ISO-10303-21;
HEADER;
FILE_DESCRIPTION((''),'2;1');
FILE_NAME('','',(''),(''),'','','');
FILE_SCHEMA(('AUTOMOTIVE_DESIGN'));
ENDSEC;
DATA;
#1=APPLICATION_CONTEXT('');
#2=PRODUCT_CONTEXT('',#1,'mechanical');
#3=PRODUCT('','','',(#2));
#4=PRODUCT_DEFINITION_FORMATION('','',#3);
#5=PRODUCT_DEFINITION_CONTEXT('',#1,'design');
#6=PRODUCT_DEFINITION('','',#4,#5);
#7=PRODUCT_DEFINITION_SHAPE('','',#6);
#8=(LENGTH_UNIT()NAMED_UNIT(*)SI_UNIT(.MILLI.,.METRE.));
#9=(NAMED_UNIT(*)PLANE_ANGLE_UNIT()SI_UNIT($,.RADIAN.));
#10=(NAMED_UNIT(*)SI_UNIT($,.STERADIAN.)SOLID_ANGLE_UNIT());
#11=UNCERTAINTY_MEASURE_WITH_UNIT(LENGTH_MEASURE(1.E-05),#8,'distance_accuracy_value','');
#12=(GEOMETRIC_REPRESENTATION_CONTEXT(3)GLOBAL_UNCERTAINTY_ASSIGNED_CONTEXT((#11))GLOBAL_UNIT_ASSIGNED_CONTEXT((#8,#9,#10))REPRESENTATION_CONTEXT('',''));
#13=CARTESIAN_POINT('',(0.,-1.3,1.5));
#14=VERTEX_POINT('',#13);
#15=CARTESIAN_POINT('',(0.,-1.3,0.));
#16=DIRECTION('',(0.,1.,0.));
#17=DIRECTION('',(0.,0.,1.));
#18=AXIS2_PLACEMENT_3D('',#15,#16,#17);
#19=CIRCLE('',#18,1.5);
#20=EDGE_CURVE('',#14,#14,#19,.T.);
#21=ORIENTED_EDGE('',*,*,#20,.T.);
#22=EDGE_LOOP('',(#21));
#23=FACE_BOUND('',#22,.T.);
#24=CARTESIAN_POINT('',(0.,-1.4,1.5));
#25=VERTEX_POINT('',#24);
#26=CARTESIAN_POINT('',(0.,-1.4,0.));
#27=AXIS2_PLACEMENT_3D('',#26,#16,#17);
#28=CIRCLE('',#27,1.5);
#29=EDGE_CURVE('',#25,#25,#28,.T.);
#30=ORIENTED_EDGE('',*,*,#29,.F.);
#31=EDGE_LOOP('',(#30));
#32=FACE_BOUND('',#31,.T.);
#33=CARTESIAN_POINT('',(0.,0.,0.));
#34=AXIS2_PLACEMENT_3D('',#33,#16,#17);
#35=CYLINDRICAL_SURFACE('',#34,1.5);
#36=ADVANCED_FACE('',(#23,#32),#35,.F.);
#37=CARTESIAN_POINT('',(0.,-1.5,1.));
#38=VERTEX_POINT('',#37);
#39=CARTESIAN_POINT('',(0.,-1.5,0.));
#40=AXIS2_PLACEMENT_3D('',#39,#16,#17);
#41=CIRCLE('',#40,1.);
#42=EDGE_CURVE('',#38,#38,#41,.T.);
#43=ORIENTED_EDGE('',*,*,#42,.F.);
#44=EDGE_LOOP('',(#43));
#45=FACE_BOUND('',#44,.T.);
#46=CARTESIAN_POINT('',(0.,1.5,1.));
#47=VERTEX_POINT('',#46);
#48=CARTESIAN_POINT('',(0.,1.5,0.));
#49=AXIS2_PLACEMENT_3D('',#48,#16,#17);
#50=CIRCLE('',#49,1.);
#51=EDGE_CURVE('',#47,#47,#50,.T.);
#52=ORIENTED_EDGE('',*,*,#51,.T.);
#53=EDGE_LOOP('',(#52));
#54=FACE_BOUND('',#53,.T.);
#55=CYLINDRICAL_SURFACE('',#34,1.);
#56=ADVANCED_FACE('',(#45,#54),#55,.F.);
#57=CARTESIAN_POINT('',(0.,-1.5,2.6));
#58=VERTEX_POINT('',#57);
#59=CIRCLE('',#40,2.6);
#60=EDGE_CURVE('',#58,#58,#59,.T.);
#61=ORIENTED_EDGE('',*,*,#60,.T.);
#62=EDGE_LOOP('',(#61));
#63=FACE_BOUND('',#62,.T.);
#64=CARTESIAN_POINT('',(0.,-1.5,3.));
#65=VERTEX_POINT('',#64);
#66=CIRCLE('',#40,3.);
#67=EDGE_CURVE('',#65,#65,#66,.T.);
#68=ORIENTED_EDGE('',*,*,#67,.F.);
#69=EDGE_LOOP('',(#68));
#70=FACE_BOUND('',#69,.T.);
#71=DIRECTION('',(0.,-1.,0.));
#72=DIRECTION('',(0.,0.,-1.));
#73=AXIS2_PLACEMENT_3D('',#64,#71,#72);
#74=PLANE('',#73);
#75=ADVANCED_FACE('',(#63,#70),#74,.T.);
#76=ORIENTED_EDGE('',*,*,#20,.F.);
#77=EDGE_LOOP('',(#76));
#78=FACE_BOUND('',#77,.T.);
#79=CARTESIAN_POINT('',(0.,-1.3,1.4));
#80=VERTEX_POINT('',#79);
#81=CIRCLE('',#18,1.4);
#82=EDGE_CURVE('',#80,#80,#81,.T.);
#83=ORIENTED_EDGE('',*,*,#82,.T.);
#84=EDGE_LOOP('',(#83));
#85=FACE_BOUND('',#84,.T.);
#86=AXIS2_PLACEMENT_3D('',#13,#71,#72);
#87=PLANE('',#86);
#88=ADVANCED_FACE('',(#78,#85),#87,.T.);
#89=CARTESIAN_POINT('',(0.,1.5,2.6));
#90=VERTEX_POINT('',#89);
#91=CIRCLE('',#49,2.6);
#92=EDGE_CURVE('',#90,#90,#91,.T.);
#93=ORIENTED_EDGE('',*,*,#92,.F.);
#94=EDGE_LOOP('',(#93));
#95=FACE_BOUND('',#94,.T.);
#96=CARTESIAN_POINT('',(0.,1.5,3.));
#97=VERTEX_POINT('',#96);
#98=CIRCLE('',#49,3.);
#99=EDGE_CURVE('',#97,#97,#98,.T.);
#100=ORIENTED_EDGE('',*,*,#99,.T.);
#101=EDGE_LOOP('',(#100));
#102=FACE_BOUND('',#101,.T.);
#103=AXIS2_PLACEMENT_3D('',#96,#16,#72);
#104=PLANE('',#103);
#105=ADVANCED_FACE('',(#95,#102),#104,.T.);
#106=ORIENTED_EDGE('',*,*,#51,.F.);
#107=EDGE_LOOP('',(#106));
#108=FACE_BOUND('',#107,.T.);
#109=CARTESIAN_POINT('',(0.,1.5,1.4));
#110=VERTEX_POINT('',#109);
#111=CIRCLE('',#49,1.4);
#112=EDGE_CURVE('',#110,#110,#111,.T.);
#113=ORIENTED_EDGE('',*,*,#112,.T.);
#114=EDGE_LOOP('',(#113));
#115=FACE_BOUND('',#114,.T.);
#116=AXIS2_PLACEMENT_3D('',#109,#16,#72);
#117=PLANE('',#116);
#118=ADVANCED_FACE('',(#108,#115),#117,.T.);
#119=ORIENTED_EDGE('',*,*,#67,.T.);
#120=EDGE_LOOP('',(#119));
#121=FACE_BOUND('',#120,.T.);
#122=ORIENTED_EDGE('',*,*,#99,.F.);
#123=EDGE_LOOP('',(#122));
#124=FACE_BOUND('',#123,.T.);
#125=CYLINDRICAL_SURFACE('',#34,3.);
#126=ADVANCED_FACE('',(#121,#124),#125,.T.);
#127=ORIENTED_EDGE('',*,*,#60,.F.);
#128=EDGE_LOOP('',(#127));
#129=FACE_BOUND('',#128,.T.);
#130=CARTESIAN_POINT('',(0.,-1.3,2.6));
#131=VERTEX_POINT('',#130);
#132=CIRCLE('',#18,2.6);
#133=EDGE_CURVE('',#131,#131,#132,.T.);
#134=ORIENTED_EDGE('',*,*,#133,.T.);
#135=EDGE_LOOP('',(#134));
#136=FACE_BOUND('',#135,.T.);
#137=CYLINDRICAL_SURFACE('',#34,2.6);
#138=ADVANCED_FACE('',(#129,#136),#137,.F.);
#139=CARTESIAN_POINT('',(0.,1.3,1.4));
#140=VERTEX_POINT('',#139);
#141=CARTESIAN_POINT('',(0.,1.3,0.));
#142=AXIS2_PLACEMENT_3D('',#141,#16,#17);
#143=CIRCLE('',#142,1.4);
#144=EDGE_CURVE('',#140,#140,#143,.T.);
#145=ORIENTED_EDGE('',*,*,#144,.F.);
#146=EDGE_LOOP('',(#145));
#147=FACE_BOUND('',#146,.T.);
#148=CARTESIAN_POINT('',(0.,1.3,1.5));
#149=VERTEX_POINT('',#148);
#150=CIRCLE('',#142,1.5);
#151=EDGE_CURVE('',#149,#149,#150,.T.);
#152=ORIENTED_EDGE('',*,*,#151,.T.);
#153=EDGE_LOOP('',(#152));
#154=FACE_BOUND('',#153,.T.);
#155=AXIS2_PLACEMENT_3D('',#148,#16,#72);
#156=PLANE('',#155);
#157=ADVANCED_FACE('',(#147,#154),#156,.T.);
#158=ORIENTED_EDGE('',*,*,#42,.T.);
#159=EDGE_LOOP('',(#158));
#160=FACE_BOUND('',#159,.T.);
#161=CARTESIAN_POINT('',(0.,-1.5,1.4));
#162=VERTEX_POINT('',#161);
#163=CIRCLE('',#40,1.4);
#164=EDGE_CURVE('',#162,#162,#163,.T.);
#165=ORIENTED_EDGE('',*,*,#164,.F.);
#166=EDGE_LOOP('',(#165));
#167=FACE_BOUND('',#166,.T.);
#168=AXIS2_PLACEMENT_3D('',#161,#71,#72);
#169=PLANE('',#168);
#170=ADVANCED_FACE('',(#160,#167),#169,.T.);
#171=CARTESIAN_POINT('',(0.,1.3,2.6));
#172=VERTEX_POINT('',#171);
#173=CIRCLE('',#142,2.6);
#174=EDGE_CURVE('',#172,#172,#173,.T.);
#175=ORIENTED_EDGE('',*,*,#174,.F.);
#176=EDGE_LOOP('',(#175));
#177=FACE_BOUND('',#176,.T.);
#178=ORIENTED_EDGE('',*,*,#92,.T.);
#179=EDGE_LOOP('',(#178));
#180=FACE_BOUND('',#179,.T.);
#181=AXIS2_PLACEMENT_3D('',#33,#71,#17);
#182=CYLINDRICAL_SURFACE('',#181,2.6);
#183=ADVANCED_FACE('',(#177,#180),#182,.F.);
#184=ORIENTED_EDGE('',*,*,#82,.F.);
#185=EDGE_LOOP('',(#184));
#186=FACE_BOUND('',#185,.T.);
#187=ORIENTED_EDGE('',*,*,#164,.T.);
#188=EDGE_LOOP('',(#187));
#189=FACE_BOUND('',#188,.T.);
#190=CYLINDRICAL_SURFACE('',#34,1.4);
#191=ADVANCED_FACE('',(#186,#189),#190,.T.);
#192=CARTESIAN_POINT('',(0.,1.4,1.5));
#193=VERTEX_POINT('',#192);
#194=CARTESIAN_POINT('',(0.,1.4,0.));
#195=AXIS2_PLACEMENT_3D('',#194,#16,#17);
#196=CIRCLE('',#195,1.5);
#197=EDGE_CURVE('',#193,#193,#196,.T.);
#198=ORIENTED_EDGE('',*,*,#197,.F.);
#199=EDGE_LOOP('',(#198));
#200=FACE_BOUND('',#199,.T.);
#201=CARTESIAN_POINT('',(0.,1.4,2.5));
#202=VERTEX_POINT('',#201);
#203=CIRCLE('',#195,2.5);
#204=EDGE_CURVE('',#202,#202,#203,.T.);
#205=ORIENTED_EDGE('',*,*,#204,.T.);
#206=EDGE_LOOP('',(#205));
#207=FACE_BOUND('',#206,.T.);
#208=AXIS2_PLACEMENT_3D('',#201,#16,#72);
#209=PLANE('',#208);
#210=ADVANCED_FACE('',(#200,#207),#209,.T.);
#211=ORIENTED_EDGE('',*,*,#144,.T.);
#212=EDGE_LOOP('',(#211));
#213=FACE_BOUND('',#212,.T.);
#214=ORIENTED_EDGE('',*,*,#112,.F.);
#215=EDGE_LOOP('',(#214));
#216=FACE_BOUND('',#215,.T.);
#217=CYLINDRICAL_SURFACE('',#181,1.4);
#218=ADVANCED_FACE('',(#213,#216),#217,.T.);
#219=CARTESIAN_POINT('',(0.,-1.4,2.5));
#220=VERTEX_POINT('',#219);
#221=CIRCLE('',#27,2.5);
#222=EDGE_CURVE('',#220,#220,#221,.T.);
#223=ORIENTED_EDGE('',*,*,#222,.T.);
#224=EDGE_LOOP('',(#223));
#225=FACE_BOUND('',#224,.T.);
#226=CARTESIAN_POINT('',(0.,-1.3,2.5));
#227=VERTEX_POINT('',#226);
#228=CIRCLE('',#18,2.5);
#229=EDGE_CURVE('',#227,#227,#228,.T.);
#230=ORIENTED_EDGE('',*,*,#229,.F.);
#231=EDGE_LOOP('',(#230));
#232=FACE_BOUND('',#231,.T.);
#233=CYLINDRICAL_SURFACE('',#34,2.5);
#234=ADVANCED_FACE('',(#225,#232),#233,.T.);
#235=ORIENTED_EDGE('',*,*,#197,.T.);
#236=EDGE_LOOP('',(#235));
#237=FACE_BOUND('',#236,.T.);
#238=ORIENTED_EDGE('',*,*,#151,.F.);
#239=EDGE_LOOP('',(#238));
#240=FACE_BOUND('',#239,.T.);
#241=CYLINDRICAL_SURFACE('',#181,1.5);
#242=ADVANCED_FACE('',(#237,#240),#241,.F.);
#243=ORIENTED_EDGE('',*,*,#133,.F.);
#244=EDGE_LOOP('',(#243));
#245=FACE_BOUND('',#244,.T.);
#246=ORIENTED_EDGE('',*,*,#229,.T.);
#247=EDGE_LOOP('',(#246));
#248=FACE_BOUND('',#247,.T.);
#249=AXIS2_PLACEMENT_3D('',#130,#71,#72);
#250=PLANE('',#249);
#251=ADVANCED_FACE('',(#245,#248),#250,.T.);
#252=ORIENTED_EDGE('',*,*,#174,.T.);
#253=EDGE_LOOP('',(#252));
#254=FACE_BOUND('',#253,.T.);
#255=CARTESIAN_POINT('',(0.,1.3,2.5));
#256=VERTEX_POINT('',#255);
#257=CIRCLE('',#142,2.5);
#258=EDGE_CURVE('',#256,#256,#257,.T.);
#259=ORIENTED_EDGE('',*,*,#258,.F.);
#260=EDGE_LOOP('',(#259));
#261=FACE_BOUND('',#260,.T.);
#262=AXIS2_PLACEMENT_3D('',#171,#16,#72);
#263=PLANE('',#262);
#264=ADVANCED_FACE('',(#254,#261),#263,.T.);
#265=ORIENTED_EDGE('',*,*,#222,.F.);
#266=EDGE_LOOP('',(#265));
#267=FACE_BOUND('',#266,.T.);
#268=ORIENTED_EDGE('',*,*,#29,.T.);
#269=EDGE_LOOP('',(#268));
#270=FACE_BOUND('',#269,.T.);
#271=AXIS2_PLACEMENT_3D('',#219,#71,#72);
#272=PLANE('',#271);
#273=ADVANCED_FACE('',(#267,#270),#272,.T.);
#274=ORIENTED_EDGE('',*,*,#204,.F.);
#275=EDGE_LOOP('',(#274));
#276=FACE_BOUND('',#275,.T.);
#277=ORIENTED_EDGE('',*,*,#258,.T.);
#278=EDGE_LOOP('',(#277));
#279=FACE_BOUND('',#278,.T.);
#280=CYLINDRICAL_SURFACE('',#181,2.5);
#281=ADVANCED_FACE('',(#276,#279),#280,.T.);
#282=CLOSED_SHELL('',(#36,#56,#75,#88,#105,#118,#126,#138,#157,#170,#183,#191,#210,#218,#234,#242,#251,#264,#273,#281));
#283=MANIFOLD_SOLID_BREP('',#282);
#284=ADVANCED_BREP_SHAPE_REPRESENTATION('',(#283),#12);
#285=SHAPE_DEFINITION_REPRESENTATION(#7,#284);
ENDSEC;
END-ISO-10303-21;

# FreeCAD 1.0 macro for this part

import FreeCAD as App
import Part
import Sketcher

V = App.Vector

doc = App.newDocument("Part")
body = doc.addObject("PartDesign::Body", "Body")

sketch1 = body.newObject("Sketcher::SketchObject", "Sketch")
sketch1.AttachmentSupport = (doc.getObject("YZ_Plane"), [""])
sketch1.MapMode = "FlatFace"
sketch1.addGeometry(Part.LineSegment(V(0, 3, 0), V(-1.5, 3, 0)), False)
sketch1.addGeometry(Part.LineSegment(V(-1.5, 3, 0), V(-1.5, 2.6, 0)), False)
sketch1.addGeometry(Part.LineSegment(V(-1.5, 2.6, 0), V(-1.3, 2.6, 0)), False)
sketch1.addGeometry(Part.LineSegment(V(-1.3, 2.6, 0), V(-1.3, 2.5, 0)), False)
sketch1.addGeometry(Part.LineSegment(V(-1.3, 2.5, 0), V(-1.4, 2.5, 0)), False)
sketch1.addGeometry(Part.LineSegment(V(-1.4, 2.5, 0), V(-1.4, 1.5, 0)), False)
sketch1.addGeometry(Part.LineSegment(V(-1.4, 1.5, 0), V(-1.3, 1.5, 0)), False)
sketch1.addGeometry(Part.LineSegment(V(-1.3, 1.5, 0), V(-1.3, 1.4, 0)), False)
sketch1.addGeometry(Part.LineSegment(V(-1.3, 1.4, 0), V(-1.5, 1.4, 0)), False)
sketch1.addGeometry(Part.LineSegment(V(-1.5, 1.4, 0), V(-1.5, 1, 0)), False)
sketch1.addGeometry(Part.LineSegment(V(-1.5, 1, 0), V(0, 1, 0)), False)
sketch1.addGeometry(Part.LineSegment(V(0, 1, 0), V(0, 3, 0)), False)
sketch1.addConstraint(Sketcher.Constraint("Coincident", 0, 2, 1, 1))
sketch1.addConstraint(Sketcher.Constraint("Coincident", 1, 2, 2, 1))
sketch1.addConstraint(Sketcher.Constraint("Coincident", 2, 2, 3, 1))
sketch1.addConstraint(Sketcher.Constraint("Coincident", 3, 2, 4, 1))
sketch1.addConstraint(Sketcher.Constraint("Coincident", 4, 2, 5, 1))
sketch1.addConstraint(Sketcher.Constraint("Coincident", 5, 2, 6, 1))
sketch1.addConstraint(Sketcher.Constraint("Coincident", 6, 2, 7, 1))
sketch1.addConstraint(Sketcher.Constraint("Coincident", 7, 2, 8, 1))
sketch1.addConstraint(Sketcher.Constraint("Coincident", 8, 2, 9, 1))
sketch1.addConstraint(Sketcher.Constraint("Coincident", 9, 2, 10, 1))
sketch1.addConstraint(Sketcher.Constraint("Coincident", 10, 2, 11, 1))
sketch1.addConstraint(Sketcher.Constraint("Coincident", 11, 2, 0, 1))
sketch1.addConstraint(Sketcher.Constraint("Horizontal", 0))
sketch1.addConstraint(Sketcher.Constraint("Vertical", 1))
sketch1.addConstraint(Sketcher.Constraint("Horizontal", 2))
sketch1.addConstraint(Sketcher.Constraint("Vertical", 3))
sketch1.addConstraint(Sketcher.Constraint("Horizontal", 4))
sketch1.addConstraint(Sketcher.Constraint("Vertical", 5))
sketch1.addConstraint(Sketcher.Constraint("Horizontal", 6))
sketch1.addConstraint(Sketcher.Constraint("Vertical", 7))
sketch1.addConstraint(Sketcher.Constraint("Horizontal", 8))
sketch1.addConstraint(Sketcher.Constraint("Vertical", 9))
sketch1.addConstraint(Sketcher.Constraint("Horizontal", 10))
sketch1.addConstraint(Sketcher.Constraint("Vertical", 11))
sketch1.addConstraint(Sketcher.Constraint("PointOnObject", 10, 2, -2))
sketch1.addConstraint(Sketcher.Constraint("Vertical", 3, 2, 6, 2))
sketch1.addConstraint(Sketcher.Constraint("Vertical", 1, 2, 8, 2))
sketch1.addConstraint(Sketcher.Constraint("Equal", 6, 3))
sketch1.addConstraint(Sketcher.Constraint("Equal", 3, 7))
sketch1.addConstraint(Sketcher.Constraint("Equal", 1, 9))
sketch1.addConstraint(Sketcher.Constraint("DistanceY", 5, 2, 5, 1, 1.0))
sketch1.addConstraint(Sketcher.Constraint("DistanceY", 11, 1, 11, 2, 2.0))
sketch1.addConstraint(Sketcher.Constraint("DistanceX", 0, 2, 0, 1, 1.5))
sketch1.addConstraint(Sketcher.Constraint("DistanceX", 2, 1, 2, 2, 0.2))
sketch1.addConstraint(Sketcher.Constraint("DistanceX", 4, 2, 4, 1, 0.1))
sketch1.addConstraint(Sketcher.Constraint("DistanceY", -1, 1, 0, 2, 3.0))
revolution = body.newObject("PartDesign::Revolution", "Revolution")
revolution.Profile = sketch1
revolution.ReferenceAxis = (sketch1, ["H_Axis"])
revolution.Angle = 360
doc.recompute()

mirrored = body.newObject("PartDesign::Mirrored", "Mirrored")
mirrored.Originals = [revolution]
mirrored.MirrorPlane = (doc.getObject("XZ_Plane"), [""])
body.Tip = mirrored

doc.recompute()
